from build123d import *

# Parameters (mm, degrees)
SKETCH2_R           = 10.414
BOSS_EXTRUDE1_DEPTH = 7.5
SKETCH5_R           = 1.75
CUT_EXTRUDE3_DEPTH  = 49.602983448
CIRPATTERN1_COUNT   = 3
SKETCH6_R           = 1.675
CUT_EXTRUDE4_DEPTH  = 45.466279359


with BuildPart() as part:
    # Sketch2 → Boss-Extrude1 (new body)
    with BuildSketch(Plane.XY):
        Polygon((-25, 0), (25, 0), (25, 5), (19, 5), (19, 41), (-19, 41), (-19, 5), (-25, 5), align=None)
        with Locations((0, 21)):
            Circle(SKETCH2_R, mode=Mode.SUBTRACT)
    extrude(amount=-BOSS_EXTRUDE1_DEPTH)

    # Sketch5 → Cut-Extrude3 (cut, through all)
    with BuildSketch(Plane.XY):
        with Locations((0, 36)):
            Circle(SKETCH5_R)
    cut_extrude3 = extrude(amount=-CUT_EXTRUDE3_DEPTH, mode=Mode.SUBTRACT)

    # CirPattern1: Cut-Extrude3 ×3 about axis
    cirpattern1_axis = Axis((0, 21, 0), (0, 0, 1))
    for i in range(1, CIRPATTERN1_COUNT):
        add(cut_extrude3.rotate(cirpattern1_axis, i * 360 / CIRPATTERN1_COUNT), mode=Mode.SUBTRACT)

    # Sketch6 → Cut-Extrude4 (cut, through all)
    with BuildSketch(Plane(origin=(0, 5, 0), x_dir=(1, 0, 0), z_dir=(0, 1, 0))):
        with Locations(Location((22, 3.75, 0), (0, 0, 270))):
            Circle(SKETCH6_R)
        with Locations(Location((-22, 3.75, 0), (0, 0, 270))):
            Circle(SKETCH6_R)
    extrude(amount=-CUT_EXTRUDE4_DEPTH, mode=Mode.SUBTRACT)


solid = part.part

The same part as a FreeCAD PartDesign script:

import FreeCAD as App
import Part
import Sketcher
from FreeCAD import Vector
Q = App.Units.Quantity


def add_polygon(sketch, points):
    """Adds a closed chain of lines whose ends are joined by coincident constraints."""
    first, n = sketch.GeometryCount, len(points)
    for a, b in zip(points, points[1:] + points[:1]):
        sketch.addGeometry(Part.LineSegment(App.Vector(*a, 0), App.Vector(*b, 0)), False)
    for i in range(n):
        sketch.addConstraint(Sketcher.Constraint("Coincident", first + i, 2, first + (i + 1) % n, 1))

doc = App.newDocument("Part")
body = doc.addObject("PartDesign::Body", "Body")

sketch1 = body.newObject("Sketcher::SketchObject", "Sketch")
sketch1.AttachmentSupport = (doc.getObject("XY_Plane"), [""])
sketch1.MapMode = "FlatFace"
add_polygon(sketch1, [(-25, 0), (25, 0), (25, 5), (19, 5), (19, 41), (-19, 41), (-19, 5), (-25, 5)])
sketch1.addGeometry(Part.Circle(Vector(0, 21, 0), Vector(0, 0, 1), 10), False)
sketch1.addConstraint([
    Sketcher.Constraint("Horizontal", 0),
    Sketcher.Constraint("Vertical", 1),
    Sketcher.Constraint("Horizontal", 2),
    Sketcher.Constraint("Vertical", 3),
    Sketcher.Constraint("Horizontal", 4),
    Sketcher.Constraint("Vertical", 5),
    Sketcher.Constraint("Horizontal", 6),
    Sketcher.Constraint("Vertical", 7),
    Sketcher.Constraint("Symmetric", 0, 2, 7, 2, -1, 1),
    Sketcher.Constraint("Symmetric", 2, 2, 5, 2, -2),
    Sketcher.Constraint("PointOnObject", 8, 3, -2),
    Sketcher.Constraint("DistanceX", 0, 1, 0, 2, Q("50 mm")),
    Sketcher.Constraint("DistanceX", 2, 2, 2, 1, Q("6 mm")),
    Sketcher.Constraint("DistanceY", 1, 1, 1, 2, Q("5 mm")),
    Sketcher.Constraint("DistanceY", 3, 1, 3, 2, Q("36 mm")),
    Sketcher.Constraint("Diameter", 8, Q("20.828 mm")),
    Sketcher.Constraint("DistanceY", -1, 1, 8, 3, Q("21 mm")),
])
pad1 = body.newObject("PartDesign::Pad", "Pad")
pad1.Profile = sketch1
pad1.Length = 7.5
pad1.Reversed = True

sketch2 = body.newObject("Sketcher::SketchObject", "Sketch001")
sketch2.AttachmentSupport = (doc.getObject("XY_Plane"), [""])
sketch2.MapMode = "FlatFace"
sketch2.addGeometry(Part.Circle(Vector(0, 36, 0), Vector(0, 0, 1), 1.8), False)
sketch2.addConstraint([
    Sketcher.Constraint("PointOnObject", 0, 3, -2),
    Sketcher.Constraint("Diameter", 0, Q("3.5 mm")),
    Sketcher.Constraint("DistanceY", -1, 1, 0, 3, Q("36 mm")),
])
pocket1 = body.newObject("PartDesign::Pocket", "Pocket")
pocket1.Profile = sketch2
pocket1.Type = "ThroughAll"
doc.recompute()

datumline = body.newObject("PartDesign::Line", "DatumLine")
datumline.Placement = App.Placement(Vector(0, 21, 0), App.Rotation(Vector(0, 0, 1), Vector(0, 0, 1)))
polarpattern = body.newObject("PartDesign::PolarPattern", "PolarPattern")
polarpattern.Originals = [pocket1]
polarpattern.Axis = (datumline, [""])
polarpattern.Angle = 360
polarpattern.Occurrences = 3
body.Tip = polarpattern

sketch3 = body.newObject("Sketcher::SketchObject", "Sketch002")
sketch3.AttachmentSupport = (doc.getObject("XZ_Plane"), [""])
sketch3.MapMode = "FlatFace"
sketch3.AttachmentOffset = App.Placement(Vector(0, 0, -5), App.Rotation())
sketch3.addGeometry([
    Part.Circle(Vector(22, -3.8, 0), Vector(0, 0, 1), 1.7),
    Part.Circle(Vector(-22, -3.8, 0), Vector(0, 0, 1), 1.7),
], False)
sketch3.addConstraint([
    Sketcher.Constraint("Equal", 0, 1),
    Sketcher.Constraint("Symmetric", 0, 3, 1, 3, -2),
    Sketcher.Constraint("Diameter", 0, Q("3.35 mm")),
    Sketcher.Constraint("DistanceX", -1, 1, 0, 3, Q("22 mm")),
    Sketcher.Constraint("DistanceY", 0, 3, -1, 1, Q("3.75 mm")),
])
pocket2 = body.newObject("PartDesign::Pocket", "Pocket001")
pocket2.Profile = sketch3
pocket2.Type = "ThroughAll"
pocket2.Reversed = True

doc.recompute()
